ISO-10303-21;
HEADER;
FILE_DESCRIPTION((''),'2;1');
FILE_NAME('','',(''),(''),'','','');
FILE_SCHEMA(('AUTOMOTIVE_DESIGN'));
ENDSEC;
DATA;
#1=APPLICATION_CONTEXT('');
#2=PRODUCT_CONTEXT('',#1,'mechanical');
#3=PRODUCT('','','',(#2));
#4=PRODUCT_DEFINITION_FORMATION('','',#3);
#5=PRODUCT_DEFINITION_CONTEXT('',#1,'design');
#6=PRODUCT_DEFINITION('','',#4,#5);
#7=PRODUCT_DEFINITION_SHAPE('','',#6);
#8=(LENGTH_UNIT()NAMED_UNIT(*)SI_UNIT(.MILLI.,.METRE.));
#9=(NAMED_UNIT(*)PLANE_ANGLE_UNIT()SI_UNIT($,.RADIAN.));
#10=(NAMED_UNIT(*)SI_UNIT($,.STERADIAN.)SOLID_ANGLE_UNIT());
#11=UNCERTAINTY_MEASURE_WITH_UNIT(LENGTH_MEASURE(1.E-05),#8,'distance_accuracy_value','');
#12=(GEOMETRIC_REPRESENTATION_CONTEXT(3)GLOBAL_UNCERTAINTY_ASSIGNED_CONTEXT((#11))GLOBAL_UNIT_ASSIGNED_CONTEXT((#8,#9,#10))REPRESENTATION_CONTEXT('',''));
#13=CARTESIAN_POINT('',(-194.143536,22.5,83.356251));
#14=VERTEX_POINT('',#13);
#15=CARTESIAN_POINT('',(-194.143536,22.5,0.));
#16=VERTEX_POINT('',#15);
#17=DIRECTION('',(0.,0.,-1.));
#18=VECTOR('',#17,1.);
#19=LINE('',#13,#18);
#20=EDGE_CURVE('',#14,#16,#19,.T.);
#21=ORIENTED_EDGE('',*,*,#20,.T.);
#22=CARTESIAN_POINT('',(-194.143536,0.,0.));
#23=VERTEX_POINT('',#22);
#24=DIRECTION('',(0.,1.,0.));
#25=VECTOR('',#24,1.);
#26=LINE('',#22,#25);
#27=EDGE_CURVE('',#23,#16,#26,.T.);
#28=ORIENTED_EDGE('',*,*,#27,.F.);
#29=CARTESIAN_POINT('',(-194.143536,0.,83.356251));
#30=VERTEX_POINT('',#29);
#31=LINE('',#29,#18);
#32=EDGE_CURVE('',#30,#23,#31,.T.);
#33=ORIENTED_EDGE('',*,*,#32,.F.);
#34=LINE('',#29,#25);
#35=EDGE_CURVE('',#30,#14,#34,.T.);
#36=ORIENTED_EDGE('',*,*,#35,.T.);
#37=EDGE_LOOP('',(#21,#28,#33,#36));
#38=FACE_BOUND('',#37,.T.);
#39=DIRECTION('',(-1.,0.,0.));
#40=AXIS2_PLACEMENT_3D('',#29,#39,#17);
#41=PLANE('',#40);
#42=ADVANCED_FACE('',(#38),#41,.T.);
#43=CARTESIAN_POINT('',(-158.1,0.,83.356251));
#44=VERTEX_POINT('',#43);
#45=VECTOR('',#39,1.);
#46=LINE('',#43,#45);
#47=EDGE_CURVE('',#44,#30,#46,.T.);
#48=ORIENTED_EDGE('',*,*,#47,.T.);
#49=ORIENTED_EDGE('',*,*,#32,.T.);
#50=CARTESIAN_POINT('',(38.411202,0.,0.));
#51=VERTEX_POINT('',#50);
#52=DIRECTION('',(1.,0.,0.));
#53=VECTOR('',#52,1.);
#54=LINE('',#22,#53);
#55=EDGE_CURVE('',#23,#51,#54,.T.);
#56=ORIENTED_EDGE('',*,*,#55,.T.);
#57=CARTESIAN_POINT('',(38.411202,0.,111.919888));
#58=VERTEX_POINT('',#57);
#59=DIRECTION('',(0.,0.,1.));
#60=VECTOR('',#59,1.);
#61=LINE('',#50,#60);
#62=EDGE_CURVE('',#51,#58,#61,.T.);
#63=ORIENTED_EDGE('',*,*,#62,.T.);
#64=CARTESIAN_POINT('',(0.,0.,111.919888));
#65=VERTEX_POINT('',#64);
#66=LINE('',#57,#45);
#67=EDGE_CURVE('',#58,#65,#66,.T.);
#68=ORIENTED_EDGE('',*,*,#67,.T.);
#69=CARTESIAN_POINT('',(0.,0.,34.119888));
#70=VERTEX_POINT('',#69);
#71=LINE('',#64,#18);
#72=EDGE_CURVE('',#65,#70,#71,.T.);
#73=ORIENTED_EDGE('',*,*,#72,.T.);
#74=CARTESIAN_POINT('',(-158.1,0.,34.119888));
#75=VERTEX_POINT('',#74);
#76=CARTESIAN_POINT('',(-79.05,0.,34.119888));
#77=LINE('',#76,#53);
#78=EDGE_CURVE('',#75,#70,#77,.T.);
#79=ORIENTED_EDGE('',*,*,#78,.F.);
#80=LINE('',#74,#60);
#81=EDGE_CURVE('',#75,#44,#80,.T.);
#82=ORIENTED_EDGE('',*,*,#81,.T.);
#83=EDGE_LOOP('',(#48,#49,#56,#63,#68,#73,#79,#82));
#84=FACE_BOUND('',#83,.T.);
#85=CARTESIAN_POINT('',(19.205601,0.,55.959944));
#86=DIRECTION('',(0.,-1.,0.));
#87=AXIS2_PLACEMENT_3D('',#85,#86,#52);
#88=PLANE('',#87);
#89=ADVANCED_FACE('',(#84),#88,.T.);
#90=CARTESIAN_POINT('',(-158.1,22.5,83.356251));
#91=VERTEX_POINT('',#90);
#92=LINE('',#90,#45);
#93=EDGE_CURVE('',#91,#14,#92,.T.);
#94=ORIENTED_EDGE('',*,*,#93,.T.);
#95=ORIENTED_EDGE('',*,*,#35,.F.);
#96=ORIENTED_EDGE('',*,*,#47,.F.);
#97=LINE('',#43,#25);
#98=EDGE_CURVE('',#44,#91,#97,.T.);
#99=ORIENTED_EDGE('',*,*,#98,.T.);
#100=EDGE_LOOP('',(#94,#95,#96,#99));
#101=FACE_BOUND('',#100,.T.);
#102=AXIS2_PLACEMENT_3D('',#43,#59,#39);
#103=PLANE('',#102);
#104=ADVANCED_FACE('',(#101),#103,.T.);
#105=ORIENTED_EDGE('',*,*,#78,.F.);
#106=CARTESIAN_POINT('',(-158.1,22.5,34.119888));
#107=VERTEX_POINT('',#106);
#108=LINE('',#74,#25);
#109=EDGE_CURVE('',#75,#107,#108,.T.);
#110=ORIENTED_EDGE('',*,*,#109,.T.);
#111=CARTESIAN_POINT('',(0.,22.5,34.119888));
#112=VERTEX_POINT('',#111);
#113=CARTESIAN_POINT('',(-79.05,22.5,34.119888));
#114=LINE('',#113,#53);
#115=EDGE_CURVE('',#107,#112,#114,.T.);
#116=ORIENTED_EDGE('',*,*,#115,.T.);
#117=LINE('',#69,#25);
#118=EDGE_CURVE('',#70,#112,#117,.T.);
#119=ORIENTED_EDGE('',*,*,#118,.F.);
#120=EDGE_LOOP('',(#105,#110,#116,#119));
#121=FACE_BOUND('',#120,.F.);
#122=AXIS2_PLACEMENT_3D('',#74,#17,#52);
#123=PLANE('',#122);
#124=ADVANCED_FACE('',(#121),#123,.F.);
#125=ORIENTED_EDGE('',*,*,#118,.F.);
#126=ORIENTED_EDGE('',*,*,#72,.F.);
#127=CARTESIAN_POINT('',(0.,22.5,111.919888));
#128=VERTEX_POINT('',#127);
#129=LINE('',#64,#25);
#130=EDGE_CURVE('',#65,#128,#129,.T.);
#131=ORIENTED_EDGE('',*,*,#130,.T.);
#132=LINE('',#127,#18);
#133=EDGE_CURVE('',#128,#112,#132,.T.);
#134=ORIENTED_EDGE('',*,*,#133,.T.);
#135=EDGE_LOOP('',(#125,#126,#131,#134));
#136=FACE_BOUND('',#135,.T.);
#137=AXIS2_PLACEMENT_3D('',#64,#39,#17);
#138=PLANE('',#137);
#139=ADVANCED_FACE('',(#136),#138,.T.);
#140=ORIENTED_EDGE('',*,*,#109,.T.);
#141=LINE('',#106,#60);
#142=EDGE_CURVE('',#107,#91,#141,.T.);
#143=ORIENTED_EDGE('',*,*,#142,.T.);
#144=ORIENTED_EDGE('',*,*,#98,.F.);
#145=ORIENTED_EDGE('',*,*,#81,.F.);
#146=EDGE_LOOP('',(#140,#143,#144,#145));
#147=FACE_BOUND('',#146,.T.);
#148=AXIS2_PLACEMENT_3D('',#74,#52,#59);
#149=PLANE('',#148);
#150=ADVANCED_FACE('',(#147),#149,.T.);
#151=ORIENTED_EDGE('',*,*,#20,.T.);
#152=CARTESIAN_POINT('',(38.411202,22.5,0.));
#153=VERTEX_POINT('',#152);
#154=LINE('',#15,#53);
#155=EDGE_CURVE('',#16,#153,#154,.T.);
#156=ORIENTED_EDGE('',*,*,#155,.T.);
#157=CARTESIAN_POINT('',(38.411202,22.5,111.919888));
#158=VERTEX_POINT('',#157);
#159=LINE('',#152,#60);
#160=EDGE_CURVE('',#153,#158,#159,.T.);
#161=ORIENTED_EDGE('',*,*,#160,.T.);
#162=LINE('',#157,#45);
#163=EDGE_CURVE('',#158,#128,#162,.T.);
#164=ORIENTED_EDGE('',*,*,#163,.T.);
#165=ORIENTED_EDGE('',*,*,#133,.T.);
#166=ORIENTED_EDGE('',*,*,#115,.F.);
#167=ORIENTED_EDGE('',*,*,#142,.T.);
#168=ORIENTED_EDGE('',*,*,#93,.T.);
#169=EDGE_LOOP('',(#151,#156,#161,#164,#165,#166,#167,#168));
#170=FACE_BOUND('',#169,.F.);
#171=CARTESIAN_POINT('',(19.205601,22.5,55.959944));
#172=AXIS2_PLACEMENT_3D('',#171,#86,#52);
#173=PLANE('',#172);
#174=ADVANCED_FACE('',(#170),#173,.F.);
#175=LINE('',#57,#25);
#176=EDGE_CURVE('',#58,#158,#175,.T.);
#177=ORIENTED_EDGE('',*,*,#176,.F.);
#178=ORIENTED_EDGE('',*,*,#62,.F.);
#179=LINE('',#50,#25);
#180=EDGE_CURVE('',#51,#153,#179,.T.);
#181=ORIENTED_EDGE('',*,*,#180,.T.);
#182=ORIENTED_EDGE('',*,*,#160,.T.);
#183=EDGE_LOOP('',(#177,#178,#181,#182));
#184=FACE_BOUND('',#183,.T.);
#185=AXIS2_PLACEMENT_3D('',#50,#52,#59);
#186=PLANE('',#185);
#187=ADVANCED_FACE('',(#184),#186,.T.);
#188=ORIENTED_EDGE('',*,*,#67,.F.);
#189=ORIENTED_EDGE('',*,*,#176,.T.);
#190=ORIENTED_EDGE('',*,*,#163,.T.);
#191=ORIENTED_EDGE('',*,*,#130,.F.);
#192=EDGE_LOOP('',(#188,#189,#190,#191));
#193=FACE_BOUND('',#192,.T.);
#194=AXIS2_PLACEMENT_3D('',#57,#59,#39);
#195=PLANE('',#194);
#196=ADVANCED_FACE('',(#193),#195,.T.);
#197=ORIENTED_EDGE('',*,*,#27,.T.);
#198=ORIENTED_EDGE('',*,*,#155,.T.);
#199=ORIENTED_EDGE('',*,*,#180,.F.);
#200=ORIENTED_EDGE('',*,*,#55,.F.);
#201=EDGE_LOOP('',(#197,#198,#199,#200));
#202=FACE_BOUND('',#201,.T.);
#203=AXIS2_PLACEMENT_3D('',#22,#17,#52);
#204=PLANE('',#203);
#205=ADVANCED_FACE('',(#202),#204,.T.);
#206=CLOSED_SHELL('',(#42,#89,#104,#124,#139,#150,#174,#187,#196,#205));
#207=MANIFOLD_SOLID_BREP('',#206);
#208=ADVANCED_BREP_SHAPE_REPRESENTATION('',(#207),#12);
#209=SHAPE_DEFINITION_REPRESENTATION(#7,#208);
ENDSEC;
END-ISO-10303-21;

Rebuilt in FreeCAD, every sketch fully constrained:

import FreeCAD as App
import Part
import Sketcher
Q = App.Units.Quantity

doc = App.newDocument("Part")
body = doc.addObject("PartDesign::Body", "Body")

sketch1 = doc.addObject("Sketcher::SketchObject", "Sketch")
body.addObject(sketch1)
sketch1.AttachmentSupport = (doc.XZ_Plane, [""])
sketch1.MapMode = "FlatFace"
sketch1.addGeometry(Part.LineSegment(App.Vector(38, 0, 0), App.Vector(38, 112, 0)), False)
sketch1.addGeometry(Part.LineSegment(App.Vector(38, 112, 0), App.Vector(0, 112, 0)), False)
sketch1.addGeometry(Part.LineSegment(App.Vector(0, 112, 0), App.Vector(0, 34, 0)), False)
sketch1.addGeometry(Part.LineSegment(App.Vector(0, 34, 0), App.Vector(-158, 34, 0)), False)
sketch1.addGeometry(Part.LineSegment(App.Vector(-158, 34, 0), App.Vector(-158, 83, 0)), False)
sketch1.addGeometry(Part.LineSegment(App.Vector(-158, 83, 0), App.Vector(-194, 83, 0)), False)
sketch1.addGeometry(Part.LineSegment(App.Vector(-194, 83, 0), App.Vector(-194, 0, 0)), False)
sketch1.addGeometry(Part.LineSegment(App.Vector(-194, 0, 0), App.Vector(38, 0, 0)), False)
sketch1.addConstraint(Sketcher.Constraint("Coincident", 0, 2, 1, 1))
sketch1.addConstraint(Sketcher.Constraint("Coincident", 1, 2, 2, 1))
sketch1.addConstraint(Sketcher.Constraint("Coincident", 2, 2, 3, 1))
sketch1.addConstraint(Sketcher.Constraint("Coincident", 3, 2, 4, 1))
sketch1.addConstraint(Sketcher.Constraint("Coincident", 4, 2, 5, 1))
sketch1.addConstraint(Sketcher.Constraint("Coincident", 5, 2, 6, 1))
sketch1.addConstraint(Sketcher.Constraint("Coincident", 6, 2, 7, 1))
sketch1.addConstraint(Sketcher.Constraint("Coincident", 7, 2, 0, 1))
sketch1.addConstraint(Sketcher.Constraint("Vertical", 0))
sketch1.addConstraint(Sketcher.Constraint("Horizontal", 1))
sketch1.addConstraint(Sketcher.Constraint("Vertical", 2))
sketch1.addConstraint(Sketcher.Constraint("Horizontal", 3))
sketch1.addConstraint(Sketcher.Constraint("Vertical", 4))
sketch1.addConstraint(Sketcher.Constraint("Horizontal", 5))
sketch1.addConstraint(Sketcher.Constraint("Vertical", 6))
sketch1.addConstraint(Sketcher.Constraint("Horizontal", 7))
sketch1.addConstraint(Sketcher.Constraint("PointOnObject", 1, 2, -2))
sketch1.addConstraint(Sketcher.Constraint("PointOnObject", 6, 2, -1))
sketch1.addConstraint(Sketcher.Constraint("DistanceX", 3, 2, 3, 1, Q("158.1 mm")))
sketch1.addConstraint(Sketcher.Constraint("DistanceY", 2, 2, 2, 1, Q("77.8 mm")))
sketch1.addConstraint(Sketcher.Constraint("DistanceX", 7, 1, 7, 2, Q("232.554738 mm")))
sketch1.addConstraint(Sketcher.Constraint("DistanceY", 0, 1, 0, 2, Q("111.919888 mm")))
sketch1.addConstraint(Sketcher.Constraint("DistanceY", 6, 2, 6, 1, Q("83.356251 mm")))
sketch1.addConstraint(Sketcher.Constraint("DistanceX", 3, 2, 0, 2, Q("196.511202 mm")))
pad1 = doc.addObject("PartDesign::Pad", "Pad")
body.addObject(pad1)
pad1.Profile = sketch1
pad1.Length = 22.5
pad1.Reversed = True

doc.recompute()
